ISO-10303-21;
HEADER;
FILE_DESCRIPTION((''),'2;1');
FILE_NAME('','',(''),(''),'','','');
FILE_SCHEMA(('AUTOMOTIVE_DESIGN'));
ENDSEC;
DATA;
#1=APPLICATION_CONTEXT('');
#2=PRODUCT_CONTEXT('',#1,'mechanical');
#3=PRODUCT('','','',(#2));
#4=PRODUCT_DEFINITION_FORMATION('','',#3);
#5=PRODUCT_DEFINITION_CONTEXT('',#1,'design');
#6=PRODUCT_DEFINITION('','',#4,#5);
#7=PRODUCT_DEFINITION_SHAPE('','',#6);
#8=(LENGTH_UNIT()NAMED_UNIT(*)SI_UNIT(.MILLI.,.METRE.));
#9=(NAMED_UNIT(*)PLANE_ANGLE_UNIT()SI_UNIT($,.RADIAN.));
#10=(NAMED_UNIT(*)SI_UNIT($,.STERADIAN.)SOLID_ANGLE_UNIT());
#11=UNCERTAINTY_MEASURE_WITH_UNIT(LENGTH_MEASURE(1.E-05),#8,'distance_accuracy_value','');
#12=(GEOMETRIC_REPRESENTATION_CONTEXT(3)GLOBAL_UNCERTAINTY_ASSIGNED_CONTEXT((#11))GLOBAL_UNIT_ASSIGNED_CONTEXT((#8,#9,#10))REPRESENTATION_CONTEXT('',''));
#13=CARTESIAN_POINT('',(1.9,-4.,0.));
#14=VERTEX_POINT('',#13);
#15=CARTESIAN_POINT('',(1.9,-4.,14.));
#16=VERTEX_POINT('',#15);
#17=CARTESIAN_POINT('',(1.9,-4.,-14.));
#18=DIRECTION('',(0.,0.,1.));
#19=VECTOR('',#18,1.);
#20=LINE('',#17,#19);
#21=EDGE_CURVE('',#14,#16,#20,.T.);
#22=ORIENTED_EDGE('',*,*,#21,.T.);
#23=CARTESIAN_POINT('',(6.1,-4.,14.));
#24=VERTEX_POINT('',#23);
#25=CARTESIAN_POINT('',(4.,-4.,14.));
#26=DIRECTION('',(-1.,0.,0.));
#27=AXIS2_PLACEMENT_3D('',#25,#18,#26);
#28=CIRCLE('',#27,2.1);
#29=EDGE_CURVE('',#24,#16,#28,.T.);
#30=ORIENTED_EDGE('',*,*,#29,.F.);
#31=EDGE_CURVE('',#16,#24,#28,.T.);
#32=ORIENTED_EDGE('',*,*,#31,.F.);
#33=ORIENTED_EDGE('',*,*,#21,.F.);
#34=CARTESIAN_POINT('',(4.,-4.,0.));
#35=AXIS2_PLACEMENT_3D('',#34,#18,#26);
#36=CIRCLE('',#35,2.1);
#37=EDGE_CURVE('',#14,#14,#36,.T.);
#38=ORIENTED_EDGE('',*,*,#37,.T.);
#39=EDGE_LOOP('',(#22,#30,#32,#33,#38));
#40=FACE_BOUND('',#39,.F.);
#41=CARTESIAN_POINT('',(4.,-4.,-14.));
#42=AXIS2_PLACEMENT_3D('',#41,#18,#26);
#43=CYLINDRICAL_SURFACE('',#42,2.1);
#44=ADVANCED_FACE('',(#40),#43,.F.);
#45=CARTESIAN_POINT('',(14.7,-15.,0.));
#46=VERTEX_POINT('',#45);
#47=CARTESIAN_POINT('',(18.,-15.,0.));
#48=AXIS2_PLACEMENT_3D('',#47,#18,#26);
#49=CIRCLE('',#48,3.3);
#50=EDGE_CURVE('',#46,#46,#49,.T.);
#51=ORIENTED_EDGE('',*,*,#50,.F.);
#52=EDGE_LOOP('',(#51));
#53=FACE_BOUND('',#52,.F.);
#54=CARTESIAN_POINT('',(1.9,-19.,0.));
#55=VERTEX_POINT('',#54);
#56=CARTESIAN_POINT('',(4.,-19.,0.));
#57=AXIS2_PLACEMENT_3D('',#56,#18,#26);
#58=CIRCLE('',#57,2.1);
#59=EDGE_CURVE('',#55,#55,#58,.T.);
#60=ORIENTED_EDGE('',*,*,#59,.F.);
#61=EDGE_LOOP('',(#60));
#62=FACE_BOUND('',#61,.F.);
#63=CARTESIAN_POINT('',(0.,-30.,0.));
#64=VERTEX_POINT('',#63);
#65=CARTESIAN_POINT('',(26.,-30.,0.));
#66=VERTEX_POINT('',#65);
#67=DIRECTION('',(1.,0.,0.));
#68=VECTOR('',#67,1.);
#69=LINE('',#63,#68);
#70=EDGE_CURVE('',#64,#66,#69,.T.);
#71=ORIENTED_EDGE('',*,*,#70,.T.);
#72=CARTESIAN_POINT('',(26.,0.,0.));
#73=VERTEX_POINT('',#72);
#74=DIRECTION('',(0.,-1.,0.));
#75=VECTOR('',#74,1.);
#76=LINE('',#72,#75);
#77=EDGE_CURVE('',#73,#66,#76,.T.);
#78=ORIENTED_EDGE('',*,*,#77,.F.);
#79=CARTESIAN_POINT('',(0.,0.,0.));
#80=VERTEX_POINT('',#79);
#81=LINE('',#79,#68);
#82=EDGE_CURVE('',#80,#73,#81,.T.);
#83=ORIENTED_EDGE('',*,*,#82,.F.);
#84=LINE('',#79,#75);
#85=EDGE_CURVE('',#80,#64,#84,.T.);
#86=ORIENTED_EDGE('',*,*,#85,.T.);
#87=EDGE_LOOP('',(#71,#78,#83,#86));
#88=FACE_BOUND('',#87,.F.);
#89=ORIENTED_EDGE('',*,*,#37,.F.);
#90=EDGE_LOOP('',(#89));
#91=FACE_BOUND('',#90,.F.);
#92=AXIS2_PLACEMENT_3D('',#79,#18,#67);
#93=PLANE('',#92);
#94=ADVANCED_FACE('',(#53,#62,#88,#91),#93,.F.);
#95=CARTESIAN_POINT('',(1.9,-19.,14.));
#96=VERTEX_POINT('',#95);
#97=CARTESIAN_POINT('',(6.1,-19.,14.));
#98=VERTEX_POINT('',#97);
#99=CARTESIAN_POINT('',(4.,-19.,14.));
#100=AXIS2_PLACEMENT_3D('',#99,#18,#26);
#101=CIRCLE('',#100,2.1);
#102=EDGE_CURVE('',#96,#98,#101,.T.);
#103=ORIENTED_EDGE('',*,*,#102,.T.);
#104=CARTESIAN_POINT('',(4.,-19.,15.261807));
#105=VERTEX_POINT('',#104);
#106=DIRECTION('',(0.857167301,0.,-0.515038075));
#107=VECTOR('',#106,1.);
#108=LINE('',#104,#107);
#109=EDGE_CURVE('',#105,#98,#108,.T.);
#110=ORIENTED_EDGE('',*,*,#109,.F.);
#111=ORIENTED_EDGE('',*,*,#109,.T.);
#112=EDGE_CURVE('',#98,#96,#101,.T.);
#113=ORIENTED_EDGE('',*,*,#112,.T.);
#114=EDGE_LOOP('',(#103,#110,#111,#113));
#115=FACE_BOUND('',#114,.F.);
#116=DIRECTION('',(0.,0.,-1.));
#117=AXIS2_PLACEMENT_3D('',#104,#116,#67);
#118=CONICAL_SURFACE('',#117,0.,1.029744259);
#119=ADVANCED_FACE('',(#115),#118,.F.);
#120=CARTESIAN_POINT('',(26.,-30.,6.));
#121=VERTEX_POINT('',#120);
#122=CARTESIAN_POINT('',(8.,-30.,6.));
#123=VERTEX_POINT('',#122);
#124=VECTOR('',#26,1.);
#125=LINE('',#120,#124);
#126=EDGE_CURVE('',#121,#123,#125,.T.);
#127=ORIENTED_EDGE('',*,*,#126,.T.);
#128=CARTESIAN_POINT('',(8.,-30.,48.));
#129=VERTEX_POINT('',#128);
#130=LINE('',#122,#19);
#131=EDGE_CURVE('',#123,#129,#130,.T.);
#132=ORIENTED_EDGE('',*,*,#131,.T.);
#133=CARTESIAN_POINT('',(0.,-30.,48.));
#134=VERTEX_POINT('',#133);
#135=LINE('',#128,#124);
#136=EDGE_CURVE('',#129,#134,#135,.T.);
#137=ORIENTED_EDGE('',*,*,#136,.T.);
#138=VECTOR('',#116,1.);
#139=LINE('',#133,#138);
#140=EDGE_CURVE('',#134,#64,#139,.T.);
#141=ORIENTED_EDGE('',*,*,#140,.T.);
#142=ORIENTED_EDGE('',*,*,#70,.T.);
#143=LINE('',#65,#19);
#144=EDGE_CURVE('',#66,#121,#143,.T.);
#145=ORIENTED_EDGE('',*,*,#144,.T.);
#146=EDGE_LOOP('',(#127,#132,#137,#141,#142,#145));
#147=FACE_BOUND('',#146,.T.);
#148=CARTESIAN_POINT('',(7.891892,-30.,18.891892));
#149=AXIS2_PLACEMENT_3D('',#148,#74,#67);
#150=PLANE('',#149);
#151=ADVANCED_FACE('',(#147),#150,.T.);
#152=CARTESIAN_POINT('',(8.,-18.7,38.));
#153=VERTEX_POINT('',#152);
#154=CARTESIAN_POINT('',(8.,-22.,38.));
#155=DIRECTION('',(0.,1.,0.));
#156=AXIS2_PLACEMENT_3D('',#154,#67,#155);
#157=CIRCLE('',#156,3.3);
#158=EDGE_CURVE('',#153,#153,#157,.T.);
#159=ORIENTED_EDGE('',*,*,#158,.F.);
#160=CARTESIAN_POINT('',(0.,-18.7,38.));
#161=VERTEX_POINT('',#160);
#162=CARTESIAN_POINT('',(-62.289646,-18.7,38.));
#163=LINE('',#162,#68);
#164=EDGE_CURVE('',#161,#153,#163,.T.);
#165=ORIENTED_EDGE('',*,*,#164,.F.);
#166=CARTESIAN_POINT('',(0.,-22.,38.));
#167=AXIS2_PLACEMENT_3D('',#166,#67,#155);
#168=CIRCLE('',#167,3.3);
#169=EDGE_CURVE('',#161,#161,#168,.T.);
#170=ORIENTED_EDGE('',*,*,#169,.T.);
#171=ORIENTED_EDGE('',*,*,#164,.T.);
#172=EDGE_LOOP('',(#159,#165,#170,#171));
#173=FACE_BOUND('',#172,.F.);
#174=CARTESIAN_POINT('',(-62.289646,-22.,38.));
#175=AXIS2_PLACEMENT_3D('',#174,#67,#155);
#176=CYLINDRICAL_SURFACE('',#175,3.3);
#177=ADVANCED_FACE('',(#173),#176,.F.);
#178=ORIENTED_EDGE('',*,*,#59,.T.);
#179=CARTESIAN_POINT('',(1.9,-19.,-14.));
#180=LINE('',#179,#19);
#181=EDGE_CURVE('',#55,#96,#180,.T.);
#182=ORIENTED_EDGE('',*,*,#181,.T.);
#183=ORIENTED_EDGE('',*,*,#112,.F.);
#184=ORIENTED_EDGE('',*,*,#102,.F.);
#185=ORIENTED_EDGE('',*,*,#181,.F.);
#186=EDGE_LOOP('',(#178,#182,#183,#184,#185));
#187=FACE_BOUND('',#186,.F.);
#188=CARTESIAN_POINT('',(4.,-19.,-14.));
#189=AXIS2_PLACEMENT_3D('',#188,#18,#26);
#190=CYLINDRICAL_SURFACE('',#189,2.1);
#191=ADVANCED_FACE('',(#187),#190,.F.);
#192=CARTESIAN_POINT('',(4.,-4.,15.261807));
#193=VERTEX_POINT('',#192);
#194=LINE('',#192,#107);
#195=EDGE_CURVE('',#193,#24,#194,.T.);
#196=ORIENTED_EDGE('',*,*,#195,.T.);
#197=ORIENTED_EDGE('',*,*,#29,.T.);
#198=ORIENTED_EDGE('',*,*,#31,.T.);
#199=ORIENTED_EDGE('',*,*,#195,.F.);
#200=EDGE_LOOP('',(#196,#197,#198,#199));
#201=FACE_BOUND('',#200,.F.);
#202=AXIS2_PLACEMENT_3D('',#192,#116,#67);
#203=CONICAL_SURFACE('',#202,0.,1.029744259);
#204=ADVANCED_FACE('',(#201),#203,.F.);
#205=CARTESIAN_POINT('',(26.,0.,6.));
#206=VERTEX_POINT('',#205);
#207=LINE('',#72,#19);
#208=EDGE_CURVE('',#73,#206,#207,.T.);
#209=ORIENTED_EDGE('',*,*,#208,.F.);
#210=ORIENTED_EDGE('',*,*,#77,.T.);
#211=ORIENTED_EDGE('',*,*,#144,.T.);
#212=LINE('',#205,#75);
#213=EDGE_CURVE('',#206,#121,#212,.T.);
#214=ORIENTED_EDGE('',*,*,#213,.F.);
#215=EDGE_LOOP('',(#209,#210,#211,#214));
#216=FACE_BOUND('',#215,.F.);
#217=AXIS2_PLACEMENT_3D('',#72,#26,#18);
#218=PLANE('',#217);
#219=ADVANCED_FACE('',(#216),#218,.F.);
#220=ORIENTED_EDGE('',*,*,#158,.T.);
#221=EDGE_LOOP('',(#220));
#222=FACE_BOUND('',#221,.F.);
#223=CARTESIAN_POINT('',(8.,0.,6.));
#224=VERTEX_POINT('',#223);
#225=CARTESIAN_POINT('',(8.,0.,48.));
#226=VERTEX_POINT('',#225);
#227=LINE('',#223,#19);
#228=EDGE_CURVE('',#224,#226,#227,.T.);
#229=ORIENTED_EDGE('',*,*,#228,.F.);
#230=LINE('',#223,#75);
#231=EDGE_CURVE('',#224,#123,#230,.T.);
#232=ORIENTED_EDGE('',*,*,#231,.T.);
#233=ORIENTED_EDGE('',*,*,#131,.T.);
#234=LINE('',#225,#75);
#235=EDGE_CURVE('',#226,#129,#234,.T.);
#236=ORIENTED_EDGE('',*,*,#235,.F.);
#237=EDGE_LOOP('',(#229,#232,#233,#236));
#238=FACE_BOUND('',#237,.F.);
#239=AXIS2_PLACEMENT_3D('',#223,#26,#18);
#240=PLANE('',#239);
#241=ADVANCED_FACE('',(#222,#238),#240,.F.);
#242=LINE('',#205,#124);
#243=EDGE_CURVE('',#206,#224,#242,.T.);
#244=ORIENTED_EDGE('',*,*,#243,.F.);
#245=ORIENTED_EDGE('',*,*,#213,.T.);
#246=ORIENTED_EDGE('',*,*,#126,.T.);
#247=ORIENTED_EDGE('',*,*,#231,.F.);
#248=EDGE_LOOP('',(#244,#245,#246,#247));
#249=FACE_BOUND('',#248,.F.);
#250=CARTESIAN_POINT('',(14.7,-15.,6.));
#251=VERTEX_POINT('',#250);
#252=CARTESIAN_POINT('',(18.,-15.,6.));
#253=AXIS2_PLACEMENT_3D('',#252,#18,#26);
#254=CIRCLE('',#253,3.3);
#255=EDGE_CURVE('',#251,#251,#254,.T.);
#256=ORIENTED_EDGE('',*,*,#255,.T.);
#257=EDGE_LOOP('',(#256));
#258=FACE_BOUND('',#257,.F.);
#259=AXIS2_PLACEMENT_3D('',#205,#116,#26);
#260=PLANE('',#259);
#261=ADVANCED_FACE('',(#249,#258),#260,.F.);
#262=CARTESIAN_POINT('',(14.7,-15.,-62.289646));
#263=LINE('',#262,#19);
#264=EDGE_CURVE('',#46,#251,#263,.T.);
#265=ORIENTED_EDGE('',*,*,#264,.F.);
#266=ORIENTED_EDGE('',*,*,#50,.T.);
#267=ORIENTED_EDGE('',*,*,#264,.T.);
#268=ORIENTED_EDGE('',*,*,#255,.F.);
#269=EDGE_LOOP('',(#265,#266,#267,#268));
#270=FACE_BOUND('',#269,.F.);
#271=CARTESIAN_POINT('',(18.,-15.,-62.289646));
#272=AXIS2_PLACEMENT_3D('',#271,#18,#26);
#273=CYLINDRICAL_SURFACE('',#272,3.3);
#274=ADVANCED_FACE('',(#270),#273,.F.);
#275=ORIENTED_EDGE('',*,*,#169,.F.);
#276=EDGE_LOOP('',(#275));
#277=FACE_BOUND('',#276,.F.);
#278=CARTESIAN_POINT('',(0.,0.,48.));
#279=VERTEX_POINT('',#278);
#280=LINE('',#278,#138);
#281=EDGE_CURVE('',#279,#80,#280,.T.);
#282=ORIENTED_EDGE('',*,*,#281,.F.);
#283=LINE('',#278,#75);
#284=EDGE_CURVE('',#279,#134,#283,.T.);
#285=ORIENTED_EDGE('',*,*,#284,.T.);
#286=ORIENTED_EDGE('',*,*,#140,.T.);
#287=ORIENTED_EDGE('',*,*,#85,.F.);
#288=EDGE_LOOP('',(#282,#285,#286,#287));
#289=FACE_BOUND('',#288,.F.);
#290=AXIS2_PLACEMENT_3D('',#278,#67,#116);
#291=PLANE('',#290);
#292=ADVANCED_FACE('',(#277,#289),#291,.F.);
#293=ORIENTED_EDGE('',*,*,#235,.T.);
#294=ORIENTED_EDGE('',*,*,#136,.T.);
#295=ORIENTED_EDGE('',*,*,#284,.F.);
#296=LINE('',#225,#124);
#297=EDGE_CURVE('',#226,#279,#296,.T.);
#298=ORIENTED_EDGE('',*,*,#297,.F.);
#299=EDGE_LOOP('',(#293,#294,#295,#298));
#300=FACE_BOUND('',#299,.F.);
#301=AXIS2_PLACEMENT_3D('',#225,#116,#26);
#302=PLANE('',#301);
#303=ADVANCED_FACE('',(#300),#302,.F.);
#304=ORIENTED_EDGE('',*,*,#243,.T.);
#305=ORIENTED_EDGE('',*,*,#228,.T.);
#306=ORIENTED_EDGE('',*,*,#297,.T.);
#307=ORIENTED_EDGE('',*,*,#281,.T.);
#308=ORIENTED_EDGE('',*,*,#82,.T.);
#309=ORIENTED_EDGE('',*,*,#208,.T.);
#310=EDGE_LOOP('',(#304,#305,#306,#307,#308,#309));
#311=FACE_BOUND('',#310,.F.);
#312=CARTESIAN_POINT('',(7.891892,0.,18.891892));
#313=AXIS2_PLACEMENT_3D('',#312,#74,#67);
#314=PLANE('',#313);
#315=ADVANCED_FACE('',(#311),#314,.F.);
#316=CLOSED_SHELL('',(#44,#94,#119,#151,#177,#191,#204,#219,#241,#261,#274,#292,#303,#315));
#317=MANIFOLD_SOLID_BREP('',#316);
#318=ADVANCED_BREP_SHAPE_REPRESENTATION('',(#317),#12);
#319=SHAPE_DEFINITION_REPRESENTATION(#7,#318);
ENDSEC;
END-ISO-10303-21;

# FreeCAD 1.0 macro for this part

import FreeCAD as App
import Part
import Sketcher

V = App.Vector
Q = App.Units.Quantity

doc = App.newDocument("Part")
body = doc.addObject("PartDesign::Body", "Body")

# Sketch on XZ plane
sketch1 = body.newObject("Sketcher::SketchObject", "Sketch")
sketch1.AttachmentSupport = (doc.getObject("XZ_Plane"), [""])
sketch1.MapMode = "FlatFace"
sketch1.addGeometry([
    Part.LineSegment(V(8, 48, 0), V(0, 48, 0)),  # 0
    Part.LineSegment(V(0, 48, 0), V(0, 0, 0)),  # 1
    Part.LineSegment(V(0, 0, 0), V(26, 0, 0)),  # 2
    Part.LineSegment(V(26, 0, 0), V(26, 6, 0)),  # 3
    Part.LineSegment(V(26, 6, 0), V(8, 6, 0)),  # 4
    Part.LineSegment(V(8, 6, 0), V(8, 48, 0)),  # 5
], False)
sketch1.addConstraint([
    Sketcher.Constraint("Coincident", 0, 2, 1, 1),
    Sketcher.Constraint("Coincident", 1, 2, 2, 1),
    Sketcher.Constraint("Coincident", 2, 2, 3, 1),
    Sketcher.Constraint("Coincident", 3, 2, 4, 1),
    Sketcher.Constraint("Coincident", 4, 2, 5, 1),
    Sketcher.Constraint("Coincident", 5, 2, 0, 1),
    Sketcher.Constraint("Horizontal", 0),
    Sketcher.Constraint("Vertical", 1),
    Sketcher.Constraint("Horizontal", 2),
    Sketcher.Constraint("Vertical", 3),
    Sketcher.Constraint("Horizontal", 4),
    Sketcher.Constraint("Vertical", 5),
    Sketcher.Constraint("Coincident", 1, 2, -1, 1),
    Sketcher.Constraint("DistanceX", 0, 2, 0, 1, Q("8 mm")),
    Sketcher.Constraint("DistanceX", 2, 1, 2, 2, Q("26 mm")),
    Sketcher.Constraint("DistanceY", 1, 2, 1, 1, Q("48 mm")),
    Sketcher.Constraint("DistanceY", 3, 1, 3, 2, Q("6 mm")),
])
pad1 = body.newObject("PartDesign::Pad", "Pad")
pad1.Profile = sketch1
pad1.Length = 30

# Sketch on YZ plane
sketch2 = body.newObject("Sketcher::SketchObject", "Sketch001")
sketch2.AttachmentSupport = (doc.getObject("YZ_Plane"), [""])
sketch2.MapMode = "FlatFace"
sketch2.addGeometry(Part.Circle(V(-22, 38, 0), V(0, 0, 1), 3.3), False)
sketch2.addConstraint([
    Sketcher.Constraint("Diameter", 0, Q("6.6 mm")),
    Sketcher.Constraint("DistanceX", 0, 3, -1, 1, Q("22 mm")),
    Sketcher.Constraint("DistanceY", -1, 1, 0, 3, Q("38 mm")),
])
doc.recompute()
hole = body.newObject("PartDesign::Hole", "Hole")
hole.Profile = sketch2
hole.ThreadType = "None"
hole.Diameter = 6.6
hole.DepthType = "ThroughAll"
hole.Reversed = True

# Sketch on XY plane
sketch3 = body.newObject("Sketcher::SketchObject", "Sketch002")
sketch3.AttachmentSupport = (doc.getObject("XY_Plane"), [""])
sketch3.MapMode = "FlatFace"
sketch3.addGeometry(Part.Circle(V(18, -15, 0), V(0, 0, 1), 3.3), False)
sketch3.addConstraint([
    Sketcher.Constraint("Diameter", 0, Q("6.6 mm")),
    Sketcher.Constraint("DistanceX", -1, 1, 0, 3, Q("18 mm")),
    Sketcher.Constraint("DistanceY", 0, 3, -1, 1, Q("15 mm")),
])
doc.recompute()
hole2 = body.newObject("PartDesign::Hole", "Hole001")
hole2.Profile = sketch3
hole2.ThreadType = "None"
hole2.Diameter = 6.6
hole2.DepthType = "ThroughAll"
hole2.Reversed = True

# Sketch on XY plane
sketch4 = body.newObject("Sketcher::SketchObject", "Sketch003")
sketch4.AttachmentSupport = (doc.getObject("XY_Plane"), [""])
sketch4.MapMode = "FlatFace"
sketch4.addGeometry([
    Part.Circle(V(4, -4, 0), V(0, 0, 1), 2.1),
    Part.Circle(V(4, -19, 0), V(0, 0, 1), 2.1),
], False)
sketch4.addConstraint([
    Sketcher.Constraint("Equal", 0, 1),
    Sketcher.Constraint("Vertical", 0, 3, 1, 3),
    Sketcher.Constraint("Diameter", 0, Q("4.2 mm")),
    Sketcher.Constraint("DistanceX", -1, 1, 0, 3, Q("4 mm")),
    Sketcher.Constraint("DistanceY", 0, 3, -1, 1, Q("4 mm")),
    Sketcher.Constraint("DistanceY", 1, 3, -1, 1, Q("19 mm")),
])
doc.recompute()
hole3 = body.newObject("PartDesign::Hole", "Hole002")
hole3.Profile = sketch4
hole3.ThreadType = "None"
hole3.Diameter = 4.2
hole3.DepthType = "Dimension"
hole3.Depth = 14
hole3.DrillPoint = "Angled"
hole3.DrillPointAngle = 118
hole3.Reversed = True

doc.recompute()
